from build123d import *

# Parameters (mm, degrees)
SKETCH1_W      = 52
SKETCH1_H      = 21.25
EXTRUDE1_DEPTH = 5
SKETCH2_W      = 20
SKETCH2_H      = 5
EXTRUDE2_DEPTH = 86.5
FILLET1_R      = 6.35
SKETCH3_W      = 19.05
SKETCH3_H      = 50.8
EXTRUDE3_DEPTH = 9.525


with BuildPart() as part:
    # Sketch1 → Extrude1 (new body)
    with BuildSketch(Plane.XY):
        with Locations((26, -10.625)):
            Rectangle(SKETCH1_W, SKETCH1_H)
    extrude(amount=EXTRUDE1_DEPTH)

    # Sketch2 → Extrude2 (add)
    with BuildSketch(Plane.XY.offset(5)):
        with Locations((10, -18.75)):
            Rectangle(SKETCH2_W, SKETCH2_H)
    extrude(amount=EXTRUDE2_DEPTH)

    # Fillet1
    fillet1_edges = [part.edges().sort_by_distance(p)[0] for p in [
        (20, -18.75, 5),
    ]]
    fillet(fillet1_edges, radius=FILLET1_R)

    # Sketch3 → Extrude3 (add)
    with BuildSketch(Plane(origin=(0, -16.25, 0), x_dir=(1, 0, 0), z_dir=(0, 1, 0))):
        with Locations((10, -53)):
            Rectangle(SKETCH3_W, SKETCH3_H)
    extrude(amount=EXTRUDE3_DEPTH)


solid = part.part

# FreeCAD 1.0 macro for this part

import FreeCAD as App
import Part
import Sketcher

V = App.Vector
Q = App.Units.Quantity


def edges_at(feature, points):
    """Names of the edges that pass closest to the given points."""
    edges = feature.Shape.Edges
    near = lambda p: min(range(len(edges)), key=lambda i: edges[i].distToShape(Part.Vertex(*p))[0])
    return sorted({f"Edge{near(p) + 1}" for p in points})

doc = App.newDocument("Part")
body = doc.addObject("PartDesign::Body", "Body")

sketch1 = doc.addObject("Sketcher::SketchObject", "Sketch")
body.addObject(sketch1)
sketch1.AttachmentSupport = (doc.XY_Plane, [""])
sketch1.MapMode = "FlatFace"
sketch1.addGeometry([
    Part.LineSegment(V(0, 0, 0), V(0, -21, 0)),
    Part.LineSegment(V(0, -21, 0), V(52, -21, 0)),
    Part.LineSegment(V(52, -21, 0), V(52, 0, 0)),
    Part.LineSegment(V(52, 0, 0), V(0, 0, 0)),
], False)
sketch1.addConstraint([
    Sketcher.Constraint("Coincident", 0, 2, 1, 1),
    Sketcher.Constraint("Coincident", 1, 2, 2, 1),
    Sketcher.Constraint("Coincident", 2, 2, 3, 1),
    Sketcher.Constraint("Coincident", 3, 2, 0, 1),
    Sketcher.Constraint("Vertical", 0),
    Sketcher.Constraint("Horizontal", 1),
    Sketcher.Constraint("Vertical", 2),
    Sketcher.Constraint("Horizontal", 3),
    Sketcher.Constraint("Coincident", 3, 2, -1, 1),
    Sketcher.Constraint("DistanceX", 1, 1, 1, 2, Q("52 mm")),
    Sketcher.Constraint("DistanceY", 0, 2, 0, 1, Q("21.25 mm")),
])
pad1 = doc.addObject("PartDesign::Pad", "Pad")
body.addObject(pad1)
pad1.Profile = sketch1
pad1.Length = 5

sketch2 = doc.addObject("Sketcher::SketchObject", "Sketch001")
body.addObject(sketch2)
sketch2.AttachmentSupport = (doc.XY_Plane, [""])
sketch2.MapMode = "FlatFace"
sketch2.AttachmentOffset = App.Placement(V(0, 0, 5), App.Rotation())
sketch2.addGeometry([
    Part.LineSegment(V(0, -16, 0), V(0, -21, 0)),
    Part.LineSegment(V(0, -21, 0), V(20, -21, 0)),
    Part.LineSegment(V(20, -21, 0), V(20, -16, 0)),
    Part.LineSegment(V(20, -16, 0), V(0, -16, 0)),
], False)
sketch2.addConstraint([
    Sketcher.Constraint("Coincident", 0, 2, 1, 1),
    Sketcher.Constraint("Coincident", 1, 2, 2, 1),
    Sketcher.Constraint("Coincident", 2, 2, 3, 1),
    Sketcher.Constraint("Coincident", 3, 2, 0, 1),
    Sketcher.Constraint("Vertical", 0),
    Sketcher.Constraint("Horizontal", 1),
    Sketcher.Constraint("Vertical", 2),
    Sketcher.Constraint("Horizontal", 3),
    Sketcher.Constraint("PointOnObject", 0, 2, -2),
    Sketcher.Constraint("DistanceX", 1, 1, 1, 2, Q("20 mm")),
    Sketcher.Constraint("DistanceY", 0, 2, 0, 1, Q("5 mm")),
    Sketcher.Constraint("DistanceY", 0, 2, -1, 1, Q("21.25 mm")),
])
pad2 = doc.addObject("PartDesign::Pad", "Pad001")
body.addObject(pad2)
pad2.Profile = sketch2
pad2.Length = 86.5
doc.recompute()

fillet = doc.addObject("PartDesign::Fillet", "Fillet")
body.addObject(fillet)
fillet.Base = (pad2, edges_at(pad2, [(20, -18.75, 5)]))
fillet.Radius = 6.35

sketch3 = doc.addObject("Sketcher::SketchObject", "Sketch002")
body.addObject(sketch3)
sketch3.AttachmentSupport = (doc.XZ_Plane, [""])
sketch3.MapMode = "FlatFace"
sketch3.AttachmentOffset = App.Placement(V(0, 0, 16.25), App.Rotation())
sketch3.addGeometry([
    Part.LineSegment(V(0, 28, 0), V(0, 78, 0)),
    Part.LineSegment(V(0, 78, 0), V(20, 78, 0)),
    Part.LineSegment(V(20, 78, 0), V(20, 28, 0)),
    Part.LineSegment(V(20, 28, 0), V(0, 28, 0)),
], False)
sketch3.addConstraint([
    Sketcher.Constraint("Coincident", 0, 2, 1, 1),
    Sketcher.Constraint("Coincident", 1, 2, 2, 1),
    Sketcher.Constraint("Coincident", 2, 2, 3, 1),
    Sketcher.Constraint("Coincident", 3, 2, 0, 1),
    Sketcher.Constraint("Vertical", 0),
    Sketcher.Constraint("Horizontal", 1),
    Sketcher.Constraint("Vertical", 2),
    Sketcher.Constraint("Horizontal", 3),
    Sketcher.Constraint("DistanceY", 0, 1, 0, 2, Q("50.8 mm")),
    Sketcher.Constraint("DistanceX", 1, 1, 1, 2, Q("19.05 mm")),
    Sketcher.Constraint("DistanceY", -1, 1, 0, 2, Q("78.4 mm")),
    Sketcher.Constraint("DistanceX", -1, 1, 0, 2, Q("0.475 mm")),
])
pad3 = doc.addObject("PartDesign::Pad", "Pad002")
body.addObject(pad3)
pad3.Profile = sketch3
pad3.Length = 9.525
pad3.Reversed = True

doc.recompute()
